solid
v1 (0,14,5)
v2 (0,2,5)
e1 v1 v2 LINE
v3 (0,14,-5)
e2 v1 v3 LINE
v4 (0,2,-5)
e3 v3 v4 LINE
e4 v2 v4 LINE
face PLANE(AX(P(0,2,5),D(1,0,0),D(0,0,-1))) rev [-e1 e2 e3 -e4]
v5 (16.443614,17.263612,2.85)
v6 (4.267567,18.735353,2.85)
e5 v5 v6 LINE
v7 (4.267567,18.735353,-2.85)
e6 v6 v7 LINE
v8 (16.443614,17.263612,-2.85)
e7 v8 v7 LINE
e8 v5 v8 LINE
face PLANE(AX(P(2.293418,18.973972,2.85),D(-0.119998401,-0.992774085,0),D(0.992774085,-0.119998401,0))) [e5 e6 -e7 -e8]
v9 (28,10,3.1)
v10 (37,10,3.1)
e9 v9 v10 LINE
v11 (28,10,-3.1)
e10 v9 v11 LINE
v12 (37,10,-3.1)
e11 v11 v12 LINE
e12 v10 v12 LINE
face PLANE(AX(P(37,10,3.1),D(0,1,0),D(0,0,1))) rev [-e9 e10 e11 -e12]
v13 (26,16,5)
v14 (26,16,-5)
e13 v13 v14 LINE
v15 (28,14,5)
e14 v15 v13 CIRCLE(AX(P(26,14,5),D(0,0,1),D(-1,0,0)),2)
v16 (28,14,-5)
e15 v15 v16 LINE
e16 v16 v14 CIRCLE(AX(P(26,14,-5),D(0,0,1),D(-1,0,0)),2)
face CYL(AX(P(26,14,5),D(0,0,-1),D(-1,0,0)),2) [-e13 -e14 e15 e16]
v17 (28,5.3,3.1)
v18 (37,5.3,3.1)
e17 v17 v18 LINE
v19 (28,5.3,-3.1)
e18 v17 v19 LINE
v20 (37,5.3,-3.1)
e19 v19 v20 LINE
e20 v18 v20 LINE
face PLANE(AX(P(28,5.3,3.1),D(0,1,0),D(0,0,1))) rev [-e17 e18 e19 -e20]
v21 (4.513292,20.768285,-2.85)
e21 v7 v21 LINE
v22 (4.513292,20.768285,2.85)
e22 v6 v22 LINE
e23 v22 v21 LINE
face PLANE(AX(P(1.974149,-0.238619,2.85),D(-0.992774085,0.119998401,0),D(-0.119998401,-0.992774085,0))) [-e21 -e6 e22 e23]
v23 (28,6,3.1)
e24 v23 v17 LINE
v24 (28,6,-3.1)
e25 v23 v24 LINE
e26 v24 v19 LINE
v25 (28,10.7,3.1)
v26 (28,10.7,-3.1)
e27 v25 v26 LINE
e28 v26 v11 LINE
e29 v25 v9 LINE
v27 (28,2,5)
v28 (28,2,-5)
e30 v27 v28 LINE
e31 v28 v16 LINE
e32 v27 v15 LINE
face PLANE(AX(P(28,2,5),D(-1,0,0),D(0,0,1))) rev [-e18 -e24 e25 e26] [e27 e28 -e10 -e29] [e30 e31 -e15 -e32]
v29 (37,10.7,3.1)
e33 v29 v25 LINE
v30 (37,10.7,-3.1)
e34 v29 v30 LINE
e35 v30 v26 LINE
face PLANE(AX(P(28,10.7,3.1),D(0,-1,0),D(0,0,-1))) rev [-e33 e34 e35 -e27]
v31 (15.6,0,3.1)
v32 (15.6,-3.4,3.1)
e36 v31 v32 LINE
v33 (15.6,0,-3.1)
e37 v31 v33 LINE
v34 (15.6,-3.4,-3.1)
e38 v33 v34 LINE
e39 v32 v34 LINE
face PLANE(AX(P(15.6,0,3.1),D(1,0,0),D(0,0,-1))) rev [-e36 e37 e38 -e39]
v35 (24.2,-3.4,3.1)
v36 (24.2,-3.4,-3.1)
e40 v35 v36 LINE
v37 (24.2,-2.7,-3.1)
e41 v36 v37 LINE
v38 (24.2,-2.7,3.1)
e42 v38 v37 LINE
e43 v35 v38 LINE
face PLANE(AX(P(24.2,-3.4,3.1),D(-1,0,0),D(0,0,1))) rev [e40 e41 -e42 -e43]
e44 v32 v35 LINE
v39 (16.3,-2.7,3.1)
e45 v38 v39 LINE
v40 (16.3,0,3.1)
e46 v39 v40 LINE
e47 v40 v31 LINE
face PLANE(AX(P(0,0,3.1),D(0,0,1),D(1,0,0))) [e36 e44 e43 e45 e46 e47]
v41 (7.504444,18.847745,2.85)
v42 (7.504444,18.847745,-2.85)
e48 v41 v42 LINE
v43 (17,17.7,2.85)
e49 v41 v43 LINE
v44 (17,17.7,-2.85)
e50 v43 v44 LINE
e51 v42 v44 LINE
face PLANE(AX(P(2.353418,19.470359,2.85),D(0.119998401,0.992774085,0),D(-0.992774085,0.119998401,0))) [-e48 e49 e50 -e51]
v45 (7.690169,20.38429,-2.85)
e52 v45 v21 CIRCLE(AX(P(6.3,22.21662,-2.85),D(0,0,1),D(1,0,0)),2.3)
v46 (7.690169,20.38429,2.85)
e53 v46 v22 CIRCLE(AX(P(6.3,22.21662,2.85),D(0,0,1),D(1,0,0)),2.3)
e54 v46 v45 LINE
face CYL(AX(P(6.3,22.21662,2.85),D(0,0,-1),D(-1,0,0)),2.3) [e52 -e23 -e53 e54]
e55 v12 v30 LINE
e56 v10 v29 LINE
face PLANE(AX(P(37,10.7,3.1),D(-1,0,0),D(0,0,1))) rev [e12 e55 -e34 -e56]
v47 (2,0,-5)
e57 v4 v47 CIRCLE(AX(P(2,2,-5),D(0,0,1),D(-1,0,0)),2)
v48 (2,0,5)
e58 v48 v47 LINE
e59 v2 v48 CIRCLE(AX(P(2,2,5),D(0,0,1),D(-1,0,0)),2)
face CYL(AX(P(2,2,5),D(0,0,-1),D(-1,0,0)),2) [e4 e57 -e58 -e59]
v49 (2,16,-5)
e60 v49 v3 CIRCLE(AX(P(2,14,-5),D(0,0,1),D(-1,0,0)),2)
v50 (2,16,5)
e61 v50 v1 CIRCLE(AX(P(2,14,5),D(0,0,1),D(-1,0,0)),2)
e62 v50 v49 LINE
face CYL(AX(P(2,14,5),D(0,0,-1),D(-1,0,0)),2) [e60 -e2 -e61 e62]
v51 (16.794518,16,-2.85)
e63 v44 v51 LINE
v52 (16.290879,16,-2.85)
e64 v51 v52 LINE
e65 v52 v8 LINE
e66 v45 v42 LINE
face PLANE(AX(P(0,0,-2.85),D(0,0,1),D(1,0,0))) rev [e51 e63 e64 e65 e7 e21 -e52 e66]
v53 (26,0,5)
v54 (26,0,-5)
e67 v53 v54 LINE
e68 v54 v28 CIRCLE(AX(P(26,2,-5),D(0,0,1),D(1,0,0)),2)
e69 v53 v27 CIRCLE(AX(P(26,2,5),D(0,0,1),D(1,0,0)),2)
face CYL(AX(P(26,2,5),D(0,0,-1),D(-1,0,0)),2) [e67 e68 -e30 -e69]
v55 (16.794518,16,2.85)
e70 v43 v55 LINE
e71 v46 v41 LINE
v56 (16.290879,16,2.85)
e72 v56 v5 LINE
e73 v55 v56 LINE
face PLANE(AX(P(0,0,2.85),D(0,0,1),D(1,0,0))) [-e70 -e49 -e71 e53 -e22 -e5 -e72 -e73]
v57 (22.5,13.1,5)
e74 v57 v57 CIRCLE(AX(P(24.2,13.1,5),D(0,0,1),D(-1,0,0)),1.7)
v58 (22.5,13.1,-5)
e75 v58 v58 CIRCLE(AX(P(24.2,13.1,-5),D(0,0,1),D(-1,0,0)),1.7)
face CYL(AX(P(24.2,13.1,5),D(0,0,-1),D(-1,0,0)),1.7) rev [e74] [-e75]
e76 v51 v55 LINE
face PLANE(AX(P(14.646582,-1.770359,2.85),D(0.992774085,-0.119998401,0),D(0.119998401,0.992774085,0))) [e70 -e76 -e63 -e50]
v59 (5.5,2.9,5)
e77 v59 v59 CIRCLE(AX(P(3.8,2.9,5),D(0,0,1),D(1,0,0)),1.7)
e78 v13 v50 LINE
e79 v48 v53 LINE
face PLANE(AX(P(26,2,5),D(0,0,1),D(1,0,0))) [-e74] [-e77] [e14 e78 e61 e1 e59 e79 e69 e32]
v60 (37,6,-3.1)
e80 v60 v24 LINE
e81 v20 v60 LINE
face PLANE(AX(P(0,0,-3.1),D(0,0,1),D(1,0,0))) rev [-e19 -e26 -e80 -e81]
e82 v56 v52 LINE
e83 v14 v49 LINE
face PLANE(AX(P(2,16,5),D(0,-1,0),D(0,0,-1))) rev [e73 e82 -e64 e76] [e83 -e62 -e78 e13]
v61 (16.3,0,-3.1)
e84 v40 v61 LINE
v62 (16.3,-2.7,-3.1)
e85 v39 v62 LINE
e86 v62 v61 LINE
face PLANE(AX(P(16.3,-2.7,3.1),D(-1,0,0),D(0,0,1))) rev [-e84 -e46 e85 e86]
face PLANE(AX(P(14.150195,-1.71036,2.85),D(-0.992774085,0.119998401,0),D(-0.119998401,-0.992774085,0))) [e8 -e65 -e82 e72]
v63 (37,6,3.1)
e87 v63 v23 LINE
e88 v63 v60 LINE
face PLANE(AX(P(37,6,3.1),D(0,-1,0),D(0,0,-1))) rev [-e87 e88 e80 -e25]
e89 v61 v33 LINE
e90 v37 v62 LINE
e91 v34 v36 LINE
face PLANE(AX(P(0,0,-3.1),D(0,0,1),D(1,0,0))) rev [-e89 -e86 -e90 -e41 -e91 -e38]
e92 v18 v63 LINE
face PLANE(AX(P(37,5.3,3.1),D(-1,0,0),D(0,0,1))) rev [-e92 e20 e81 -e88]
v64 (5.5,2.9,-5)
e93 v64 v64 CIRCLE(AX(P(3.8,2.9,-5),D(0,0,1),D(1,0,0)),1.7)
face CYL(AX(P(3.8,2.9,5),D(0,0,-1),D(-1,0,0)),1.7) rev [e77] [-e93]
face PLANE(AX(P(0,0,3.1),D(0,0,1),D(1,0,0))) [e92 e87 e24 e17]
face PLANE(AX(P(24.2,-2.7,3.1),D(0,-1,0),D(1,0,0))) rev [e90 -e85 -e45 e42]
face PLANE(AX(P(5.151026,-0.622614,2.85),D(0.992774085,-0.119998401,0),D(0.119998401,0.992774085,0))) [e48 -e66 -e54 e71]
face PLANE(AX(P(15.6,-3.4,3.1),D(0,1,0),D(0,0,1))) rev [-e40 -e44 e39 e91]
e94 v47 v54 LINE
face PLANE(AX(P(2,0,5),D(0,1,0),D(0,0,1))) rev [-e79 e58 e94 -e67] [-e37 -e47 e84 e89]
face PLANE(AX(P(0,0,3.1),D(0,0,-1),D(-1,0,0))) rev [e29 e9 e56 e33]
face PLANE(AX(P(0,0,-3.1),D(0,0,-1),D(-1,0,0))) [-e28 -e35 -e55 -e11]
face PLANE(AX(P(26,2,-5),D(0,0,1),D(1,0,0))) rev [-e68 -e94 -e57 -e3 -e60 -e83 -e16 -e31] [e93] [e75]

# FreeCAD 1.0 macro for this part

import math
import FreeCAD as App
import Part
import Sketcher

V = App.Vector
Q = App.Units.Quantity


def add_polygon(sketch, points):
    """Adds a closed chain of lines whose ends are joined by coincident constraints."""
    first, n = sketch.GeometryCount, len(points)
    for a, b in zip(points, points[1:] + points[:1]):
        sketch.addGeometry(Part.LineSegment(App.Vector(*a, 0), App.Vector(*b, 0)), False)
    for i in range(n):
        sketch.addConstraint(Sketcher.Constraint("Coincident", first + i, 2, first + (i + 1) % n, 1))

doc = App.newDocument("Part")
body = doc.addObject("PartDesign::Body", "Body")

sketch1 = body.newObject("Sketcher::SketchObject", "Sketch")
sketch1.AttachmentSupport = (doc.getObject("XY_Plane"), [""])
sketch1.MapMode = "FlatFace"
sketch1.addGeometry([
    Part.LineSegment(V(2, 0, 0), V(26, 0, 0)),
    Part.ArcOfCircle(Part.Circle(V(26, 2, 0), V(0, 0, 1), 2), math.radians(-90), math.radians(0)),
    Part.LineSegment(V(28, 2, 0), V(28, 14, 0)),
    Part.ArcOfCircle(Part.Circle(V(26, 14, 0), V(0, 0, 1), 2), math.radians(0), math.radians(90)),
    Part.LineSegment(V(26, 16, 0), V(2, 16, 0)),
    Part.ArcOfCircle(Part.Circle(V(2, 14, 0), V(0, 0, 1), 2), math.radians(90), math.radians(180)),
    Part.LineSegment(V(0, 14, 0), V(0, 2, 0)),
    Part.ArcOfCircle(Part.Circle(V(2, 2, 0), V(0, 0, 1), 2), math.radians(-180), math.radians(-90)),
    Part.Circle(V(3.8, 2.9, 0), V(0, 0, 1), 1.7),
    Part.Circle(V(24.2, 13.1, 0), V(0, 0, 1), 1.7),
], False)
sketch1.addConstraint([
    Sketcher.Constraint("Tangent", 0, 2, 1, 1),
    Sketcher.Constraint("Tangent", 1, 2, 2, 1),
    Sketcher.Constraint("Tangent", 2, 2, 3, 1),
    Sketcher.Constraint("Tangent", 3, 2, 4, 1),
    Sketcher.Constraint("Tangent", 4, 2, 5, 1),
    Sketcher.Constraint("Tangent", 5, 2, 6, 1),
    Sketcher.Constraint("Tangent", 6, 2, 7, 1),
    Sketcher.Constraint("Tangent", 7, 2, 0, 1),
    Sketcher.Constraint("Horizontal", 0),
    Sketcher.Constraint("Vertical", 2),
    Sketcher.Constraint("Horizontal", 4),
    Sketcher.Constraint("Vertical", 6),
    Sketcher.Constraint("Equal", 1, 3),
    Sketcher.Constraint("Equal", 3, 5),
    Sketcher.Constraint("Equal", 5, 7),
    Sketcher.Constraint("Equal", 8, 9),
    Sketcher.Constraint("PointOnObject", 0, 2, -1),
    Sketcher.Constraint("PointOnObject", 5, 2, -2),
    Sketcher.Constraint("Radius", 1, Q("2 mm")),
    Sketcher.Constraint("Diameter", 8, Q("3.4 mm")),
    Sketcher.Constraint("DistanceX", 0, 1, 0, 2, Q("24 mm")),
    Sketcher.Constraint("DistanceY", 2, 1, 2, 2, Q("12 mm")),
    Sketcher.Constraint("DistanceX", -1, 1, 8, 3, Q("3.8 mm")),
    Sketcher.Constraint("DistanceY", -1, 1, 8, 3, Q("2.9 mm")),
    Sketcher.Constraint("DistanceX", -1, 1, 9, 3, Q("24.2 mm")),
    Sketcher.Constraint("DistanceY", -1, 1, 9, 3, Q("13.1 mm")),
])
pad1 = body.newObject("PartDesign::Pad", "Pad")
pad1.Profile = sketch1
pad1.Length = 10
pad1.Midplane = True

sketch2 = body.newObject("Sketcher::SketchObject", "Sketch001")
sketch2.AttachmentSupport = (doc.getObject("XY_Plane"), [""])
sketch2.MapMode = "FlatFace"
sketch2.addGeometry([
    Part.LineSegment(V(16.44, 17.26, 0), V(15.92, 12.92, 0)),
    Part.LineSegment(V(15.92, 12.92, 0), V(16.42, 12.86, 0)),
    Part.LineSegment(V(16.42, 12.86, 0), V(17, 17.7, 0)),
    Part.LineSegment(V(17, 17.7, 0), V(7.5, 18.85, 0)),
    Part.LineSegment(V(7.5, 18.85, 0), V(7.69, 20.38, 0)),
    Part.ArcOfCircle(Part.Circle(V(6.3, 22.22, 0), V(0, 0, 1), 2.3), math.radians(-53), math.radians(219)),
    Part.LineSegment(V(4.51, 20.77, 0), V(4.27, 18.74, 0)),
    Part.LineSegment(V(4.27, 18.74, 0), V(16.44, 17.26, 0)),
], False)
sketch2.addConstraint([
    Sketcher.Constraint("Coincident", 0, 2, 1, 1),
    Sketcher.Constraint("Coincident", 1, 2, 2, 1),
    Sketcher.Constraint("Coincident", 2, 2, 3, 1),
    Sketcher.Constraint("Coincident", 3, 2, 4, 1),
    Sketcher.Constraint("Coincident", 4, 2, 5, 1),
    Sketcher.Constraint("Coincident", 5, 2, 6, 1),
    Sketcher.Constraint("Coincident", 6, 2, 7, 1),
    Sketcher.Constraint("Coincident", 7, 2, 0, 1),
    Sketcher.Constraint("Perpendicular", 0, 1),
    Sketcher.Constraint("Perpendicular", 1, 2),
    Sketcher.Constraint("Perpendicular", 2, 3),
    Sketcher.Constraint("Perpendicular", 3, 4),
    Sketcher.Constraint("Parallel", 4, 6),
    Sketcher.Constraint("Perpendicular", 6, 7),
    Sketcher.Constraint("Radius", 5, Q("2.3 mm")),
    Sketcher.Constraint("DistanceX", -1, 1, 2, 2, Q("17 mm")),
    Sketcher.Constraint("Distance", 1, Q("0.5 mm")),
    Sketcher.Constraint("DistanceX", -1, 1, 5, 3, Q("6.3 mm")),
    Sketcher.Constraint("DistanceY", -1, 1, 2, 2, Q("17.7 mm")),
    Sketcher.Constraint("DistanceY", 1, 2, 0, 2, Q("0.059999 mm")),
    Sketcher.Constraint("DistanceX", -1, 1, 0, 2, Q("15.919002 mm")),
    Sketcher.Constraint("DistanceX", 6, 2, 4, 2, Q("3.422601 mm")),
    Sketcher.Constraint("Distance", 3, Q("9.56467 mm")),
    Sketcher.Constraint("Distance", 4, Q("1.547729 mm")),
    Sketcher.Constraint("Distance", 6, Q("2.047729 mm")),
])
pad2 = body.newObject("PartDesign::Pad", "Pad001")
pad2.Profile = sketch2
pad2.Length = 5.7
pad2.Midplane = True

sketch3 = body.newObject("Sketcher::SketchObject", "Sketch002")
sketch3.AttachmentSupport = (doc.getObject("XY_Plane"), [""])
sketch3.MapMode = "FlatFace"
add_polygon(sketch3, [(28, 10.7), (28, 10), (37, 10), (37, 10.7)])
add_polygon(sketch3, [(28, 6), (28, 5.3), (37, 5.3), (37, 6)])
add_polygon(sketch3, [(15.6, 0), (15.6, -3.4), (24.2, -3.4), (24.2, -2.7), (16.3, -2.7), (16.3, 0)])
sketch3.addConstraint([
    Sketcher.Constraint("Vertical", 0),
    Sketcher.Constraint("Horizontal", 1),
    Sketcher.Constraint("Vertical", 2),
    Sketcher.Constraint("Horizontal", 3),
    Sketcher.Constraint("Vertical", 4),
    Sketcher.Constraint("Horizontal", 5),
    Sketcher.Constraint("Vertical", 6),
    Sketcher.Constraint("Horizontal", 7),
    Sketcher.Constraint("Vertical", 8),
    Sketcher.Constraint("Horizontal", 9),
    Sketcher.Constraint("Vertical", 10),
    Sketcher.Constraint("Horizontal", 11),
    Sketcher.Constraint("Vertical", 12),
    Sketcher.Constraint("Horizontal", 13),
    Sketcher.Constraint("PointOnObject", 12, 2, -1),
    Sketcher.Constraint("Vertical", 3, 2, 4, 2),
    Sketcher.Constraint("Vertical", 2, 2, 5, 2),
    Sketcher.Constraint("Equal", 13, 0),
    Sketcher.Constraint("Equal", 2, 4),
    Sketcher.Constraint("Equal", 6, 10),
    Sketcher.Constraint("DistanceX", 1, 1, 1, 2, Q("9 mm")),
    Sketcher.Constraint("DistanceX", 9, 1, 9, 2, Q("8.6 mm")),
    Sketcher.Constraint("DistanceX", 11, 2, 11, 1, Q("7.9 mm")),
    Sketcher.Constraint("DistanceY", 8, 2, 8, 1, Q("3.4 mm")),
    Sketcher.Constraint("DistanceX", -1, 1, 0, 2, Q("28 mm")),
    Sketcher.Constraint("DistanceY", -1, 1, 0, 2, Q("10 mm")),
    Sketcher.Constraint("DistanceY", -1, 1, 6, 2, Q("6 mm")),
    Sketcher.Constraint("DistanceX", -1, 1, 8, 2, Q("15.6 mm")),
])
pad3 = body.newObject("PartDesign::Pad", "Pad002")
pad3.Profile = sketch3
pad3.Length = 6.2
pad3.Midplane = True

doc.recompute()
